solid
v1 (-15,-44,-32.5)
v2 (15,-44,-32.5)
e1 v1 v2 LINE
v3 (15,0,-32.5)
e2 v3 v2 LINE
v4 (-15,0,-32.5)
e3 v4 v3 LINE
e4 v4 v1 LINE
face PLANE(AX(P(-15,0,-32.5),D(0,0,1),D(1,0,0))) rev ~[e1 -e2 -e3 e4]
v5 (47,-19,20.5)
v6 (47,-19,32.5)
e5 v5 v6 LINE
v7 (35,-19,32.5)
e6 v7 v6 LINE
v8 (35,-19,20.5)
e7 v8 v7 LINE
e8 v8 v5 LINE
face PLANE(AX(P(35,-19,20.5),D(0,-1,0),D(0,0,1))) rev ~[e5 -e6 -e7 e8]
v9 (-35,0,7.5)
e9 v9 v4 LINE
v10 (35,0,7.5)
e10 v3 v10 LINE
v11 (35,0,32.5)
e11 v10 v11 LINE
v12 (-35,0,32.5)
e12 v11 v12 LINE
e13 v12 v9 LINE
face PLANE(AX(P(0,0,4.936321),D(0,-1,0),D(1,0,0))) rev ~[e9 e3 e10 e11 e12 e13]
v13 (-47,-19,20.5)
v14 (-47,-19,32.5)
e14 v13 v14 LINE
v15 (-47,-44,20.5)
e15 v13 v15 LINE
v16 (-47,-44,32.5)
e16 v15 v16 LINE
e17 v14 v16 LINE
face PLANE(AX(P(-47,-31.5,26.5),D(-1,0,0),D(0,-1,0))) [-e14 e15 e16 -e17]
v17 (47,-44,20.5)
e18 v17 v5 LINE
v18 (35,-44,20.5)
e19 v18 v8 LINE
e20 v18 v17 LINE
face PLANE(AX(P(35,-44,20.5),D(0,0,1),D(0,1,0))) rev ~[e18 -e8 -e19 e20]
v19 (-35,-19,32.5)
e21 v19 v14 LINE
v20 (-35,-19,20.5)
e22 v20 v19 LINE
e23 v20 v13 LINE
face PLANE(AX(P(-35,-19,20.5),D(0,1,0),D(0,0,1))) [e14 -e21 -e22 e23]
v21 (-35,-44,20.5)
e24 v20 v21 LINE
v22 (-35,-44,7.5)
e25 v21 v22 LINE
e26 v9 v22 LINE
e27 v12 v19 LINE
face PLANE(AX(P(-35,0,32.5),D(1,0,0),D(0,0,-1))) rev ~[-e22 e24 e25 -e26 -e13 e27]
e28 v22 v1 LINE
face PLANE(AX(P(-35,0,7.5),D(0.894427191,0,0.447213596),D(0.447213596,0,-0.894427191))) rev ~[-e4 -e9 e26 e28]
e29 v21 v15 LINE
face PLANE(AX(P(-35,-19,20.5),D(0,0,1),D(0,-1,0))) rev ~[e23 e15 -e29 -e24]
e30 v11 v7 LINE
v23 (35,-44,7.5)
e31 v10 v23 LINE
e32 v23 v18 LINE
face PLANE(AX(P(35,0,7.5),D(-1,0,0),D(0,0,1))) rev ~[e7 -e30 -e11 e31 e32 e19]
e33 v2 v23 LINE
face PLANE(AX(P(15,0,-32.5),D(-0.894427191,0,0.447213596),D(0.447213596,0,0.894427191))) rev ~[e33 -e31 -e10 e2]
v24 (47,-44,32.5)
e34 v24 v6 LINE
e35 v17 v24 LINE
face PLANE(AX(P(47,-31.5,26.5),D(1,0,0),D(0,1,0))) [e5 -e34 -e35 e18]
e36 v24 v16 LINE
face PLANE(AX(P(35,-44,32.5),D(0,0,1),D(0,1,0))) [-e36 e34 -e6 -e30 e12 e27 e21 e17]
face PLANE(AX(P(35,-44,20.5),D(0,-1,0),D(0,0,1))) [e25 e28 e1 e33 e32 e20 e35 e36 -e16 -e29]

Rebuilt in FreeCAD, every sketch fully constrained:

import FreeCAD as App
import Part
import Sketcher

V = App.Vector
Q = App.Units.Quantity

doc = App.newDocument("Part")
body = doc.addObject("PartDesign::Body", "Body")

sketch1 = body.newObject("Sketcher::SketchObject", "Sketch")
sketch1.AttachmentSupport = (doc.getObject("XZ_Plane"), [""])
sketch1.MapMode = "FlatFace"
sketch1.addGeometry([
    Part.LineSegment(V(-35, 8, 0), V(-15, -32, 0)),
    Part.LineSegment(V(-15, -32, 0), V(15, -32, 0)),
    Part.LineSegment(V(15, -32, 0), V(35, 8, 0)),
    Part.LineSegment(V(35, 8, 0), V(35, 32, 0)),
    Part.LineSegment(V(35, 32, 0), V(-35, 32, 0)),
    Part.LineSegment(V(-35, 32, 0), V(-35, 8, 0)),
], False)
sketch1.addConstraint([
    Sketcher.Constraint("Coincident", 0, 2, 1, 1),
    Sketcher.Constraint("Coincident", 1, 2, 2, 1),
    Sketcher.Constraint("Coincident", 2, 2, 3, 1),
    Sketcher.Constraint("Coincident", 3, 2, 4, 1),
    Sketcher.Constraint("Coincident", 4, 2, 5, 1),
    Sketcher.Constraint("Coincident", 5, 2, 0, 1),
    Sketcher.Constraint("Horizontal", 1),
    Sketcher.Constraint("Vertical", 3),
    Sketcher.Constraint("Horizontal", 4),
    Sketcher.Constraint("Vertical", 5),
    Sketcher.Constraint("Symmetric", 2, 2, 5, 2, -2),
    Sketcher.Constraint("Equal", 0, 2),
    Sketcher.Constraint("DistanceX", 1, 1, 1, 2, Q("30 mm")),
    Sketcher.Constraint("DistanceX", 4, 2, 4, 1, Q("70 mm")),
    Sketcher.Constraint("DistanceY", 3, 1, 3, 2, Q("25 mm")),
    Sketcher.Constraint("DistanceY", 1, 2, 2, 2, Q("40 mm")),
    Sketcher.Constraint("DistanceY", 0, 2, -1, 1, Q("32.5 mm")),
])
pad1 = body.newObject("PartDesign::Pad", "Pad")
pad1.Profile = sketch1
pad1.Length = 44

sketch2 = body.newObject("Sketcher::SketchObject", "Sketch001")
sketch2.AttachmentSupport = (doc.getObject("YZ_Plane"), [""])
sketch2.MapMode = "FlatFace"
sketch2.AttachmentOffset = App.Placement(V(0, 0, -35), App.Rotation())
sketch2.addGeometry([
    Part.LineSegment(V(-19, 32, 0), V(-19, 20, 0)),
    Part.LineSegment(V(-19, 20, 0), V(-44, 20, 0)),
    Part.LineSegment(V(-44, 20, 0), V(-44, 32, 0)),
    Part.LineSegment(V(-44, 32, 0), V(-19, 32, 0)),
], False)
sketch2.addConstraint([
    Sketcher.Constraint("Coincident", 0, 2, 1, 1),
    Sketcher.Constraint("Coincident", 1, 2, 2, 1),
    Sketcher.Constraint("Coincident", 2, 2, 3, 1),
    Sketcher.Constraint("Coincident", 3, 2, 0, 1),
    Sketcher.Constraint("Vertical", 0),
    Sketcher.Constraint("Horizontal", 1),
    Sketcher.Constraint("Vertical", 2),
    Sketcher.Constraint("Horizontal", 3),
    Sketcher.Constraint("DistanceX", 1, 2, 1, 1, Q("25 mm")),
    Sketcher.Constraint("DistanceY", 0, 2, 0, 1, Q("12 mm")),
    Sketcher.Constraint("DistanceX", 0, 2, -1, 1, Q("19 mm")),
    Sketcher.Constraint("DistanceY", -1, 1, 0, 2, Q("20.5 mm")),
])
pad2 = body.newObject("PartDesign::Pad", "Pad001")
pad2.Profile = sketch2
pad2.Length = 12
pad2.Reversed = True

sketch3 = body.newObject("Sketcher::SketchObject", "Sketch002")
sketch3.AttachmentSupport = (doc.getObject("YZ_Plane"), [""])
sketch3.MapMode = "FlatFace"
sketch3.AttachmentOffset = App.Placement(V(0, 0, 35), App.Rotation())
sketch3.addGeometry([
    Part.LineSegment(V(-44, 32, 0), V(-44, 20, 0)),
    Part.LineSegment(V(-44, 20, 0), V(-19, 20, 0)),
    Part.LineSegment(V(-19, 20, 0), V(-19, 32, 0)),
    Part.LineSegment(V(-19, 32, 0), V(-44, 32, 0)),
], False)
sketch3.addConstraint([
    Sketcher.Constraint("Coincident", 0, 2, 1, 1),
    Sketcher.Constraint("Coincident", 1, 2, 2, 1),
    Sketcher.Constraint("Coincident", 2, 2, 3, 1),
    Sketcher.Constraint("Coincident", 3, 2, 0, 1),
    Sketcher.Constraint("Vertical", 0),
    Sketcher.Constraint("Horizontal", 1),
    Sketcher.Constraint("Vertical", 2),
    Sketcher.Constraint("Horizontal", 3),
    Sketcher.Constraint("DistanceX", 1, 1, 1, 2, Q("25 mm")),
    Sketcher.Constraint("DistanceY", 0, 2, 0, 1, Q("12 mm")),
    Sketcher.Constraint("DistanceX", 0, 2, -1, 1, Q("44 mm")),
    Sketcher.Constraint("DistanceY", -1, 1, 0, 2, Q("20.5 mm")),
])
pad3 = body.newObject("PartDesign::Pad", "Pad002")
pad3.Profile = sketch3
pad3.Length = 12

doc.recompute()
